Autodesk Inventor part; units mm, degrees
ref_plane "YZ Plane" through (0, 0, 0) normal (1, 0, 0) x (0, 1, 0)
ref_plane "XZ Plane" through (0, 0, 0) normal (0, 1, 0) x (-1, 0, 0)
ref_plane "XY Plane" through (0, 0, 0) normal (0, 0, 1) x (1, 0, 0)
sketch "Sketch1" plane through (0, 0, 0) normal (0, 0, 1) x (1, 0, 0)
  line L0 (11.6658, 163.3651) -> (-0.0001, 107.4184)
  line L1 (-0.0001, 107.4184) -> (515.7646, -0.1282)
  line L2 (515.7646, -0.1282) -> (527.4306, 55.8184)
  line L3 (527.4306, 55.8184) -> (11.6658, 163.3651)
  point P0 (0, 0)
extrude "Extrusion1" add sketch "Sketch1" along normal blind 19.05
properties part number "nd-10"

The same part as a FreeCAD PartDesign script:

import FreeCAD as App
import Part
import Sketcher

V = App.Vector
Q = App.Units.Quantity


def add_polygon(sketch, points):
    """Adds a closed chain of lines whose ends are joined by coincident constraints."""
    first, n = sketch.GeometryCount, len(points)
    for a, b in zip(points, points[1:] + points[:1]):
        sketch.addGeometry(Part.LineSegment(App.Vector(*a, 0), App.Vector(*b, 0)), False)
    for i in range(n):
        sketch.addConstraint(Sketcher.Constraint("Coincident", first + i, 2, first + (i + 1) % n, 1))

doc = App.newDocument("Part")
params = doc.addObject("Spreadsheet::Sheet", "Params")
for row, (alias, value) in enumerate([
    ("sketch1_length", "2.25 in"),
    ("sketch1_length2", "2.25 in"),
    ("pad1_length", "0.75 in"),
], start=1):
    params.set(f"A{row}", alias)
    params.set(f"B{row}", "=" + value)
    params.setAlias(f"B{row}", alias)

body = doc.addObject("PartDesign::Body", "Body")

sketch1 = body.newObject("Sketcher::SketchObject", "Sketch")
sketch1.AttachmentSupport = (doc.getObject("XY_Plane"), [""])
sketch1.MapMode = "FlatFace"
add_polygon(sketch1, [(527.4306, 55.8184), (11.6658, 163.3651), (-0.0001, 107.4184), (515.7646, -0.1282)])
sketch1.addConstraint(Sketcher.Constraint("PointOnObject", 1, 2, -2))
sketch1.addConstraint(Sketcher.Constraint("Distance", 1, Q("2.25 in")))
sketch1.addConstraint(Sketcher.Constraint("Distance", 3, Q("2.25 in")))
sketch1.addConstraint(Sketcher.Constraint("DistanceX", 1, 2, 3, 2, Q("20.765 in")))
sketch1.addConstraint(Sketcher.Constraint("DistanceY", -1, 1, 0, 2, Q("6.4317 in")))
sketch1.addConstraint(Sketcher.Constraint("DistanceX", -1, 1, 2, 2, Q("20.3057 in")))
sketch1.addConstraint(Sketcher.Constraint("DistanceX", 0, 2, 2, 2, Q("19.8464 in")))
sketch1.addConstraint(Sketcher.Constraint("DistanceY", 3, 2, 1, 2, Q("2.0315 in")))
sketch1.setExpression("Constraints[5]", "Params.sketch1_length")
sketch1.setExpression("Constraints[6]", "Params.sketch1_length2")
pad1 = body.newObject("PartDesign::Pad", "Pad")
pad1.Profile = sketch1
pad1.setExpression("Length", "Params.pad1_length")

doc.recompute()
